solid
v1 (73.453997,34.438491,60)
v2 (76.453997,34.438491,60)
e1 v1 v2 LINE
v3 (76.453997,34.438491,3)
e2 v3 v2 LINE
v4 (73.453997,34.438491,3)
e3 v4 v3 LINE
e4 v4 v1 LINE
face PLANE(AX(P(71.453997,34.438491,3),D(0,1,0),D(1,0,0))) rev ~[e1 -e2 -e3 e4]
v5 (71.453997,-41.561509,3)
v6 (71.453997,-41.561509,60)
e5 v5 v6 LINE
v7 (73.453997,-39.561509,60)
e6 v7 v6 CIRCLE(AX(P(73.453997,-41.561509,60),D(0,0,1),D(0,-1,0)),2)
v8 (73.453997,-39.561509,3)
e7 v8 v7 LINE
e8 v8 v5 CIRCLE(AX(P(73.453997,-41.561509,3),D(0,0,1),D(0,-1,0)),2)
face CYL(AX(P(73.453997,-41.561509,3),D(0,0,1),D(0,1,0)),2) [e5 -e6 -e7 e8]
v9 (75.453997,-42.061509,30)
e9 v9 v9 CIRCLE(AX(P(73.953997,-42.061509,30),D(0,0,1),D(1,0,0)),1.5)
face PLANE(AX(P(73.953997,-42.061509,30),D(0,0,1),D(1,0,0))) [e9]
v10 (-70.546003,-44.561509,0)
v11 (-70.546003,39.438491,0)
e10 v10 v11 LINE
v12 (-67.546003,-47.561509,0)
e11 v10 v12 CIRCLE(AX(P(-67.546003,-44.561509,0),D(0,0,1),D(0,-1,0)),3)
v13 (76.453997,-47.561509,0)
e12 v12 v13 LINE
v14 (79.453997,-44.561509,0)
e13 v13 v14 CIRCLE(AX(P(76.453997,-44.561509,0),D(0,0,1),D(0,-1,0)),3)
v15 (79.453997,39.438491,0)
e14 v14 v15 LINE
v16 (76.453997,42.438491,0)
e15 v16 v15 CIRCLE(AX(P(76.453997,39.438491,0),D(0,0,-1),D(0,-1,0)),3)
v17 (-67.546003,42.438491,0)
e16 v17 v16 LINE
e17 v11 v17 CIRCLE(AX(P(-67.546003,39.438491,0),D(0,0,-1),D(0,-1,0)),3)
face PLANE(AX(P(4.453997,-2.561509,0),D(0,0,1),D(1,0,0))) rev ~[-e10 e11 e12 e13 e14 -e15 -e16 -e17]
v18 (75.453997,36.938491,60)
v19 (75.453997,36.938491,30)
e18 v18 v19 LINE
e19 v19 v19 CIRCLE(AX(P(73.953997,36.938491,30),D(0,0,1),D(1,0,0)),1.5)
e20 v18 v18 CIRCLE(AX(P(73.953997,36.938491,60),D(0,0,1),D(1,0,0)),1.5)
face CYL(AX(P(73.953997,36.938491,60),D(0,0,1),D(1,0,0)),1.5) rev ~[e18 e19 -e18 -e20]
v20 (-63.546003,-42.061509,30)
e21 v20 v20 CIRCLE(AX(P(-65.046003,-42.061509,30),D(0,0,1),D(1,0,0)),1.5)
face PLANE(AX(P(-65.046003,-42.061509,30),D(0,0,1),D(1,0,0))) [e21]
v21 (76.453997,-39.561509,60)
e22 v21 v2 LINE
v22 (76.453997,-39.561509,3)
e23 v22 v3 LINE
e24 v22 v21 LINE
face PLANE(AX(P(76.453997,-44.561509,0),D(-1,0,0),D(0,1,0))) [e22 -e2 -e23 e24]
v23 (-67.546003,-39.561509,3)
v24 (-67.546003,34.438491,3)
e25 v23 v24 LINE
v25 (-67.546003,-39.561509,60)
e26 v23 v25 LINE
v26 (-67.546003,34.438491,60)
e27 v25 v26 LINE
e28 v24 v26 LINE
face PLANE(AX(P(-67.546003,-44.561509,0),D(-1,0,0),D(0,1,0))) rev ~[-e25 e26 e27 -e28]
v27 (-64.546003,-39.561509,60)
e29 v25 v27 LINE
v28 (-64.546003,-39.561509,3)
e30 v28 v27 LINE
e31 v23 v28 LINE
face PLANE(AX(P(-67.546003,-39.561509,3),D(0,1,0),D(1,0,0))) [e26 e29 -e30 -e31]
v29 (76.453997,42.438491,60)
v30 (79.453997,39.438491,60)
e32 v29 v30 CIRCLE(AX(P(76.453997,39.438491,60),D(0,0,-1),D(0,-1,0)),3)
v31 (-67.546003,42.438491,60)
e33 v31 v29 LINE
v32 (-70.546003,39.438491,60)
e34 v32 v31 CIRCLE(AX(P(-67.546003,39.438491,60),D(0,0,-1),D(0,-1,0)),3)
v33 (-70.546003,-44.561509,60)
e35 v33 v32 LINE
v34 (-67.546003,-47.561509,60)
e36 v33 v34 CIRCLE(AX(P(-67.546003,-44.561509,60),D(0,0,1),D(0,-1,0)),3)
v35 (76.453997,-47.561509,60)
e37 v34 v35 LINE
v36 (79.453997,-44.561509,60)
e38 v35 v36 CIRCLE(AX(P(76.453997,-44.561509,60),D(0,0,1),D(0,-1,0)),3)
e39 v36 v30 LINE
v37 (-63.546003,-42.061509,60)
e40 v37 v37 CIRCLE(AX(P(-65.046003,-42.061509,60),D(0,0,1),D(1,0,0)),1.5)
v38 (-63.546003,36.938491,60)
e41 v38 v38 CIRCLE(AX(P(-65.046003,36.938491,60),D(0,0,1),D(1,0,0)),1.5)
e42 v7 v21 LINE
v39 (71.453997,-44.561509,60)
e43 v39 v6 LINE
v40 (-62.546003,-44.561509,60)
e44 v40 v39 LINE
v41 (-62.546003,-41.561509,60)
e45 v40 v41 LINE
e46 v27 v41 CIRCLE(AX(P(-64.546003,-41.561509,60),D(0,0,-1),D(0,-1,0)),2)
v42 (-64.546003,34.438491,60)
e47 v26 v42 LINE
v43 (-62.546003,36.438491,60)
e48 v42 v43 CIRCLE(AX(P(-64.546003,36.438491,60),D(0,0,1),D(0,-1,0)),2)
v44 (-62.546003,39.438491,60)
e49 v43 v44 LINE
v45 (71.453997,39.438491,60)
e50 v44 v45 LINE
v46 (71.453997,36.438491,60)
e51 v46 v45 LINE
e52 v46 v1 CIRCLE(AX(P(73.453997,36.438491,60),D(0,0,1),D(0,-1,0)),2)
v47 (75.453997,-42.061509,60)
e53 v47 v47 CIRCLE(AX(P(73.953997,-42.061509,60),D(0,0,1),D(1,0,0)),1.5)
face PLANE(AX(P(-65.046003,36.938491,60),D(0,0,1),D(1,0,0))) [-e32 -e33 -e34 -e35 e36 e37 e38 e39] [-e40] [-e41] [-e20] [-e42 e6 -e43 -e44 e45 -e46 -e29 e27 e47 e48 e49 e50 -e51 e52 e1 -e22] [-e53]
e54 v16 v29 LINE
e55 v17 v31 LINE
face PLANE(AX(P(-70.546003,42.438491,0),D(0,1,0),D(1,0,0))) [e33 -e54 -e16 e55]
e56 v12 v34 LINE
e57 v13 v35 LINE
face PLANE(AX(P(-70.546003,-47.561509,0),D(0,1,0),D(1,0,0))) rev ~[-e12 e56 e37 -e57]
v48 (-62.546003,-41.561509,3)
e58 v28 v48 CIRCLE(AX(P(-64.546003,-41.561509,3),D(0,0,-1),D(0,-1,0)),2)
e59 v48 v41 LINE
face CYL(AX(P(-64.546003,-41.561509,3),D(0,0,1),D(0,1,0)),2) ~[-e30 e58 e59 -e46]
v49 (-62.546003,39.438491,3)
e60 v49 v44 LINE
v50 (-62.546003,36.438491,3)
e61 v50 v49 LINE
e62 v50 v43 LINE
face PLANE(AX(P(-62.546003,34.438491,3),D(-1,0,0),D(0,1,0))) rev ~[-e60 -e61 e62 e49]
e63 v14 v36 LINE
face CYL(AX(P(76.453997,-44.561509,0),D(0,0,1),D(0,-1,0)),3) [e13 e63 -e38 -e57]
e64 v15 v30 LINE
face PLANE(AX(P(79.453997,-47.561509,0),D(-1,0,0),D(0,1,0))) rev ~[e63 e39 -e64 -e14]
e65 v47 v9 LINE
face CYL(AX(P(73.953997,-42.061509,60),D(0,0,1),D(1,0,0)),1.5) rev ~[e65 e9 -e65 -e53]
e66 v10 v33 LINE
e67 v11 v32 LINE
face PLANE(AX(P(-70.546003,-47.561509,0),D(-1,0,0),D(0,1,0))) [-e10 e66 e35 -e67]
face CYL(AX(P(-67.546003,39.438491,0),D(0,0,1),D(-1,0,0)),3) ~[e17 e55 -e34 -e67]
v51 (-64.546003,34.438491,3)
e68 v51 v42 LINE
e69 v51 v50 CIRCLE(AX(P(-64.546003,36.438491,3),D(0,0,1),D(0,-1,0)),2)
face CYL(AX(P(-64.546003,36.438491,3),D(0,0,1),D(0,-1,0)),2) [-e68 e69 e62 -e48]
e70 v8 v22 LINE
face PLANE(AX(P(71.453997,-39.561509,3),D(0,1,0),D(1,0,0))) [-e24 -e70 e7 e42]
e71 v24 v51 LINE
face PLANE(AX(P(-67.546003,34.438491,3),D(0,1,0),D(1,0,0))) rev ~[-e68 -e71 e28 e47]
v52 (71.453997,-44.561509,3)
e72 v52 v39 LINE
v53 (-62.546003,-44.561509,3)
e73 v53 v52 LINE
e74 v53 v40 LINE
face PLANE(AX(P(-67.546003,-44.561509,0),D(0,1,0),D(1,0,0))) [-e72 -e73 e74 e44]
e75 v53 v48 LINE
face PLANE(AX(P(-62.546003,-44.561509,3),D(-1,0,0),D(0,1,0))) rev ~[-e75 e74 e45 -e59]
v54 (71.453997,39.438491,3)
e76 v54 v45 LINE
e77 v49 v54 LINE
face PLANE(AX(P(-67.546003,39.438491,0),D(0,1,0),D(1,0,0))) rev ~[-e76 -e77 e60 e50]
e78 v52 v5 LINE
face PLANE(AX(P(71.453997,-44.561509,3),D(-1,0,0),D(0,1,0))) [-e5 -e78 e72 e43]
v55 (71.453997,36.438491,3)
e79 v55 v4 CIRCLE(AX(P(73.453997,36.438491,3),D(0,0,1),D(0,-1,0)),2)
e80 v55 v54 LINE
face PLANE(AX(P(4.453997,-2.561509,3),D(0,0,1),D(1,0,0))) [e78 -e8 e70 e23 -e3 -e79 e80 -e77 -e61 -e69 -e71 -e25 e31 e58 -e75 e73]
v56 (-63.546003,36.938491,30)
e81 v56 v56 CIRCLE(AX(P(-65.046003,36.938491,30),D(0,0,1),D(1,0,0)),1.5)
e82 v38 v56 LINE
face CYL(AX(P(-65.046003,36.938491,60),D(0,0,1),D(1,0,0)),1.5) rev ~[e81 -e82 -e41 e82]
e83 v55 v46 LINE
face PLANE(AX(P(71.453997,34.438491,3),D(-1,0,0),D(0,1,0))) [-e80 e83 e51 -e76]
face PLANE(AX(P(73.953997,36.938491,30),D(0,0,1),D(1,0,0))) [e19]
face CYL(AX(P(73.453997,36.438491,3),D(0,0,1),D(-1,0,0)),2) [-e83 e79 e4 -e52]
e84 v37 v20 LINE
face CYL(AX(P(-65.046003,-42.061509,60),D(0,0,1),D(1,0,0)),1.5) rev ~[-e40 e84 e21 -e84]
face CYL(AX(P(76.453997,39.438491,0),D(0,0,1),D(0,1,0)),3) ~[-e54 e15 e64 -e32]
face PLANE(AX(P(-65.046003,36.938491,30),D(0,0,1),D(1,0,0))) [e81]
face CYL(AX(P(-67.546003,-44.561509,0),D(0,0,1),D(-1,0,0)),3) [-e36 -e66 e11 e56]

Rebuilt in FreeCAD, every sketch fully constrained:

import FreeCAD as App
import Part
import Sketcher

V = App.Vector
Q = App.Units.Quantity


def edges_at(feature, points):
    """Names of the edges that pass closest to the given points."""
    edges = feature.Shape.Edges
    near = lambda p: min(range(len(edges)), key=lambda i: edges[i].distToShape(Part.Vertex(*p))[0])
    return sorted({f"Edge{near(p) + 1}" for p in points})

doc = App.newDocument("Part")
body = doc.addObject("PartDesign::Body", "Body")

# Sketch on XY plane
sketch1 = body.newObject("Sketcher::SketchObject", "Sketch")
sketch1.AttachmentSupport = (doc.getObject("XY_Plane"), [""])
sketch1.MapMode = "FlatFace"
sketch1.addGeometry(Part.LineSegment(V(-68, 39, 0), V(-68, -45, 0)), False)
sketch1.addGeometry(Part.LineSegment(V(-68, -45, 0), V(76, -45, 0)), False)
sketch1.addGeometry(Part.LineSegment(V(76, -45, 0), V(76, 39, 0)), False)
sketch1.addGeometry(Part.LineSegment(V(76, 39, 0), V(-68, 39, 0)), False)
sketch1.addConstraint(Sketcher.Constraint("Coincident", 0, 2, 1, 1))
sketch1.addConstraint(Sketcher.Constraint("Coincident", 1, 2, 2, 1))
sketch1.addConstraint(Sketcher.Constraint("Coincident", 2, 2, 3, 1))
sketch1.addConstraint(Sketcher.Constraint("Coincident", 3, 2, 0, 1))
sketch1.addConstraint(Sketcher.Constraint("Vertical", 0))
sketch1.addConstraint(Sketcher.Constraint("Horizontal", 1))
sketch1.addConstraint(Sketcher.Constraint("Vertical", 2))
sketch1.addConstraint(Sketcher.Constraint("Horizontal", 3))
sketch1.addConstraint(Sketcher.Constraint("DistanceX", 1, 1, 1, 2, Q("144 mm")))
sketch1.addConstraint(Sketcher.Constraint("DistanceY", 0, 2, 0, 1, Q("84 mm")))
sketch1.addConstraint(Sketcher.Constraint("DistanceY", 0, 2, -1, 1, Q("44.561509 mm")))
sketch1.addConstraint(Sketcher.Constraint("DistanceX", 0, 2, -1, 1, Q("67.546003 mm")))
pad1 = body.newObject("PartDesign::Pad", "Pad")
pad1.Profile = sketch1
pad1.Length = 3

# Sketch on XY plane
sketch2 = body.newObject("Sketcher::SketchObject", "Sketch001")
sketch2.AttachmentSupport = (doc.getObject("XY_Plane"), [""])
sketch2.MapMode = "FlatFace"
sketch2.addGeometry(Part.LineSegment(V(-71, 42, 0), V(-71, -48, 0)), False)
sketch2.addGeometry(Part.LineSegment(V(-71, -48, 0), V(79, -48, 0)), False)
sketch2.addGeometry(Part.LineSegment(V(79, -48, 0), V(79, 42, 0)), False)
sketch2.addGeometry(Part.LineSegment(V(79, 42, 0), V(-71, 42, 0)), False)
sketch2.addGeometry(Part.LineSegment(V(76, -45, 0), V(-68, -45, 0)), False)
sketch2.addGeometry(Part.LineSegment(V(-68, -45, 0), V(-68, 39, 0)), False)
sketch2.addGeometry(Part.LineSegment(V(-68, 39, 0), V(76, 39, 0)), False)
sketch2.addGeometry(Part.LineSegment(V(76, 39, 0), V(76, -45, 0)), False)
sketch2.addConstraint(Sketcher.Constraint("Coincident", 0, 2, 1, 1))
sketch2.addConstraint(Sketcher.Constraint("Coincident", 1, 2, 2, 1))
sketch2.addConstraint(Sketcher.Constraint("Coincident", 2, 2, 3, 1))
sketch2.addConstraint(Sketcher.Constraint("Coincident", 3, 2, 0, 1))
sketch2.addConstraint(Sketcher.Constraint("Coincident", 4, 2, 5, 1))
sketch2.addConstraint(Sketcher.Constraint("Coincident", 5, 2, 6, 1))
sketch2.addConstraint(Sketcher.Constraint("Coincident", 6, 2, 7, 1))
sketch2.addConstraint(Sketcher.Constraint("Coincident", 7, 2, 4, 1))
sketch2.addConstraint(Sketcher.Constraint("Vertical", 0))
sketch2.addConstraint(Sketcher.Constraint("Horizontal", 1))
sketch2.addConstraint(Sketcher.Constraint("Vertical", 2))
sketch2.addConstraint(Sketcher.Constraint("Horizontal", 3))
sketch2.addConstraint(Sketcher.Constraint("Horizontal", 4))
sketch2.addConstraint(Sketcher.Constraint("Vertical", 5))
sketch2.addConstraint(Sketcher.Constraint("Horizontal", 6))
sketch2.addConstraint(Sketcher.Constraint("Vertical", 7))
sketch2.addConstraint(Sketcher.Constraint("DistanceX", 1, 1, 1, 2, Q("150 mm")))
sketch2.addConstraint(Sketcher.Constraint("DistanceX", 4, 2, 4, 1, Q("144 mm")))
sketch2.addConstraint(Sketcher.Constraint("DistanceY", 0, 2, 0, 1, Q("90 mm")))
sketch2.addConstraint(Sketcher.Constraint("DistanceY", 5, 1, 5, 2, Q("84 mm")))
sketch2.addConstraint(Sketcher.Constraint("DistanceX", 0, 2, 4, 2, Q("3 mm")))
sketch2.addConstraint(Sketcher.Constraint("DistanceY", 0, 2, 4, 2, Q("3 mm")))
sketch2.addConstraint(Sketcher.Constraint("DistanceY", 0, 2, -1, 1, Q("47.561509 mm")))
sketch2.addConstraint(Sketcher.Constraint("DistanceX", 0, 2, -1, 1, Q("70.546003 mm")))
pad2 = body.newObject("PartDesign::Pad", "Pad001")
pad2.Profile = sketch2
pad2.Length = 60
doc.recompute()

fillet = body.newObject("PartDesign::Fillet", "Fillet")
fillet.Base = (pad2, edges_at(pad2, [
    (-70.546, 42.438, 30),
    (-70.546, -47.562, 30),
    (79.454, -47.562, 30),
    (79.454, 42.438, 30),
]))
fillet.Radius = 3

# Sketch on XY plane
sketch3 = body.newObject("Sketcher::SketchObject", "Sketch002")
sketch3.AttachmentSupport = (doc.getObject("XY_Plane"), [""])
sketch3.MapMode = "FlatFace"
sketch3.AttachmentOffset = App.Placement(V(0, 0, 3), App.Rotation())
sketch3.addGeometry(Part.LineSegment(V(-68, 39, 0), V(-68, 34, 0)), False)
sketch3.addGeometry(Part.LineSegment(V(-68, 34, 0), V(-63, 34, 0)), False)
sketch3.addGeometry(Part.LineSegment(V(-63, 34, 0), V(-63, 39, 0)), False)
sketch3.addGeometry(Part.LineSegment(V(-63, 39, 0), V(-68, 39, 0)), False)
sketch3.addGeometry(Part.LineSegment(V(-68, -40, 0), V(-68, -45, 0)), False)
sketch3.addGeometry(Part.LineSegment(V(-68, -45, 0), V(-63, -45, 0)), False)
sketch3.addGeometry(Part.LineSegment(V(-63, -45, 0), V(-63, -40, 0)), False)
sketch3.addGeometry(Part.LineSegment(V(-63, -40, 0), V(-68, -40, 0)), False)
sketch3.addGeometry(Part.LineSegment(V(71, 39, 0), V(71, 34, 0)), False)
sketch3.addGeometry(Part.LineSegment(V(71, 34, 0), V(76, 34, 0)), False)
sketch3.addGeometry(Part.LineSegment(V(76, 34, 0), V(76, 39, 0)), False)
sketch3.addGeometry(Part.LineSegment(V(76, 39, 0), V(71, 39, 0)), False)
sketch3.addGeometry(Part.LineSegment(V(71, -40, 0), V(71, -45, 0)), False)
sketch3.addGeometry(Part.LineSegment(V(71, -45, 0), V(76, -45, 0)), False)
sketch3.addGeometry(Part.LineSegment(V(76, -45, 0), V(76, -40, 0)), False)
sketch3.addGeometry(Part.LineSegment(V(76, -40, 0), V(71, -40, 0)), False)
sketch3.addConstraint(Sketcher.Constraint("Coincident", 0, 2, 1, 1))
sketch3.addConstraint(Sketcher.Constraint("Coincident", 1, 2, 2, 1))
sketch3.addConstraint(Sketcher.Constraint("Coincident", 2, 2, 3, 1))
sketch3.addConstraint(Sketcher.Constraint("Coincident", 3, 2, 0, 1))
sketch3.addConstraint(Sketcher.Constraint("Coincident", 4, 2, 5, 1))
sketch3.addConstraint(Sketcher.Constraint("Coincident", 5, 2, 6, 1))
sketch3.addConstraint(Sketcher.Constraint("Coincident", 6, 2, 7, 1))
sketch3.addConstraint(Sketcher.Constraint("Coincident", 7, 2, 4, 1))
sketch3.addConstraint(Sketcher.Constraint("Coincident", 8, 2, 9, 1))
sketch3.addConstraint(Sketcher.Constraint("Coincident", 9, 2, 10, 1))
sketch3.addConstraint(Sketcher.Constraint("Coincident", 10, 2, 11, 1))
sketch3.addConstraint(Sketcher.Constraint("Coincident", 11, 2, 8, 1))
sketch3.addConstraint(Sketcher.Constraint("Coincident", 12, 2, 13, 1))
sketch3.addConstraint(Sketcher.Constraint("Coincident", 13, 2, 14, 1))
sketch3.addConstraint(Sketcher.Constraint("Coincident", 14, 2, 15, 1))
sketch3.addConstraint(Sketcher.Constraint("Coincident", 15, 2, 12, 1))
sketch3.addConstraint(Sketcher.Constraint("Vertical", 0))
sketch3.addConstraint(Sketcher.Constraint("Horizontal", 1))
sketch3.addConstraint(Sketcher.Constraint("Vertical", 2))
sketch3.addConstraint(Sketcher.Constraint("Horizontal", 3))
sketch3.addConstraint(Sketcher.Constraint("Vertical", 4))
sketch3.addConstraint(Sketcher.Constraint("Horizontal", 5))
sketch3.addConstraint(Sketcher.Constraint("Vertical", 6))
sketch3.addConstraint(Sketcher.Constraint("Horizontal", 7))
sketch3.addConstraint(Sketcher.Constraint("Vertical", 8))
sketch3.addConstraint(Sketcher.Constraint("Horizontal", 9))
sketch3.addConstraint(Sketcher.Constraint("Vertical", 10))
sketch3.addConstraint(Sketcher.Constraint("Horizontal", 11))
sketch3.addConstraint(Sketcher.Constraint("Vertical", 12))
sketch3.addConstraint(Sketcher.Constraint("Horizontal", 13))
sketch3.addConstraint(Sketcher.Constraint("Vertical", 14))
sketch3.addConstraint(Sketcher.Constraint("Horizontal", 15))
sketch3.addConstraint(Sketcher.Constraint("Horizontal", 1, 2, 8, 2))
sketch3.addConstraint(Sketcher.Constraint("Horizontal", 3, 2, 10, 2))
sketch3.addConstraint(Sketcher.Constraint("Horizontal", 5, 2, 12, 2))
sketch3.addConstraint(Sketcher.Constraint("Horizontal", 7, 2, 14, 2))
sketch3.addConstraint(Sketcher.Constraint("Vertical", 3, 2, 4, 2))
sketch3.addConstraint(Sketcher.Constraint("Vertical", 2, 2, 5, 2))
sketch3.addConstraint(Sketcher.Constraint("Vertical", 11, 2, 12, 2))
sketch3.addConstraint(Sketcher.Constraint("Vertical", 10, 2, 13, 2))
sketch3.addConstraint(Sketcher.Constraint("Equal", 7, 9))
sketch3.addConstraint(Sketcher.Constraint("Equal", 15, 0))
sketch3.addConstraint(Sketcher.Constraint("Equal", 2, 4))
sketch3.addConstraint(Sketcher.Constraint("DistanceX", 1, 1, 1, 2, Q("5 mm")))
sketch3.addConstraint(Sketcher.Constraint("DistanceY", 4, 2, 0, 2, Q("79 mm")))
sketch3.addConstraint(Sketcher.Constraint("DistanceX", 1, 2, 8, 2, Q("134 mm")))
sketch3.addConstraint(Sketcher.Constraint("DistanceY", -1, 1, 0, 2, Q("34.438491 mm")))
sketch3.addConstraint(Sketcher.Constraint("DistanceX", 0, 2, -1, 1, Q("67.546003 mm")))
pad3 = body.newObject("PartDesign::Pad", "Pad002")
pad3.Profile = sketch3
pad3.Length = 57

# Sketch on XY plane
sketch4 = body.newObject("Sketcher::SketchObject", "Sketch003")
sketch4.AttachmentSupport = (doc.getObject("XY_Plane"), [""])
sketch4.MapMode = "FlatFace"
sketch4.AttachmentOffset = App.Placement(V(0, 0, 60), App.Rotation())
sketch4.addGeometry(Part.Circle(V(-65, 36.9, 0), V(0, 0, 1), 1.5), False)
sketch4.addGeometry(Part.Circle(V(-65, -42.1, 0), V(0, 0, 1), 1.5), False)
sketch4.addGeometry(Part.Circle(V(74, -42.1, 0), V(0, 0, 1), 1.5), False)
sketch4.addGeometry(Part.Circle(V(74, 36.9, 0), V(0, 0, 1), 1.5), False)
sketch4.addConstraint(Sketcher.Constraint("Equal", 0, 1))
sketch4.addConstraint(Sketcher.Constraint("Equal", 1, 2))
sketch4.addConstraint(Sketcher.Constraint("Equal", 2, 3))
sketch4.addConstraint(Sketcher.Constraint("Horizontal", 1, 3, 2, 3))
sketch4.addConstraint(Sketcher.Constraint("Horizontal", 0, 3, 3, 3))
sketch4.addConstraint(Sketcher.Constraint("Vertical", 0, 3, 1, 3))
sketch4.addConstraint(Sketcher.Constraint("Vertical", 2, 3, 3, 3))
sketch4.addConstraint(Sketcher.Constraint("Diameter", 0, Q("3 mm")))
sketch4.addConstraint(Sketcher.Constraint("DistanceY", 1, 3, 0, 3, Q("79 mm")))
sketch4.addConstraint(Sketcher.Constraint("DistanceX", 1, 3, 2, 3, Q("139 mm")))
sketch4.addConstraint(Sketcher.Constraint("DistanceY", -1, 1, 0, 3, Q("36.938491 mm")))
sketch4.addConstraint(Sketcher.Constraint("DistanceX", 0, 3, -1, 1, Q("65.046003 mm")))
pocket1 = body.newObject("PartDesign::Pocket", "Pocket")
pocket1.Profile = sketch4
pocket1.Length = 30
doc.recompute()

fillet2 = body.newObject("PartDesign::Fillet", "Fillet001")
fillet2.Base = (pocket1, edges_at(pocket1, [
    (-62.546, 34.438, 31.5),
    (71.454, 34.438, 31.5),
    (71.454, -39.562, 31.5),
    (-62.546, -39.562, 31.5),
]))
fillet2.Radius = 2

doc.recompute()
